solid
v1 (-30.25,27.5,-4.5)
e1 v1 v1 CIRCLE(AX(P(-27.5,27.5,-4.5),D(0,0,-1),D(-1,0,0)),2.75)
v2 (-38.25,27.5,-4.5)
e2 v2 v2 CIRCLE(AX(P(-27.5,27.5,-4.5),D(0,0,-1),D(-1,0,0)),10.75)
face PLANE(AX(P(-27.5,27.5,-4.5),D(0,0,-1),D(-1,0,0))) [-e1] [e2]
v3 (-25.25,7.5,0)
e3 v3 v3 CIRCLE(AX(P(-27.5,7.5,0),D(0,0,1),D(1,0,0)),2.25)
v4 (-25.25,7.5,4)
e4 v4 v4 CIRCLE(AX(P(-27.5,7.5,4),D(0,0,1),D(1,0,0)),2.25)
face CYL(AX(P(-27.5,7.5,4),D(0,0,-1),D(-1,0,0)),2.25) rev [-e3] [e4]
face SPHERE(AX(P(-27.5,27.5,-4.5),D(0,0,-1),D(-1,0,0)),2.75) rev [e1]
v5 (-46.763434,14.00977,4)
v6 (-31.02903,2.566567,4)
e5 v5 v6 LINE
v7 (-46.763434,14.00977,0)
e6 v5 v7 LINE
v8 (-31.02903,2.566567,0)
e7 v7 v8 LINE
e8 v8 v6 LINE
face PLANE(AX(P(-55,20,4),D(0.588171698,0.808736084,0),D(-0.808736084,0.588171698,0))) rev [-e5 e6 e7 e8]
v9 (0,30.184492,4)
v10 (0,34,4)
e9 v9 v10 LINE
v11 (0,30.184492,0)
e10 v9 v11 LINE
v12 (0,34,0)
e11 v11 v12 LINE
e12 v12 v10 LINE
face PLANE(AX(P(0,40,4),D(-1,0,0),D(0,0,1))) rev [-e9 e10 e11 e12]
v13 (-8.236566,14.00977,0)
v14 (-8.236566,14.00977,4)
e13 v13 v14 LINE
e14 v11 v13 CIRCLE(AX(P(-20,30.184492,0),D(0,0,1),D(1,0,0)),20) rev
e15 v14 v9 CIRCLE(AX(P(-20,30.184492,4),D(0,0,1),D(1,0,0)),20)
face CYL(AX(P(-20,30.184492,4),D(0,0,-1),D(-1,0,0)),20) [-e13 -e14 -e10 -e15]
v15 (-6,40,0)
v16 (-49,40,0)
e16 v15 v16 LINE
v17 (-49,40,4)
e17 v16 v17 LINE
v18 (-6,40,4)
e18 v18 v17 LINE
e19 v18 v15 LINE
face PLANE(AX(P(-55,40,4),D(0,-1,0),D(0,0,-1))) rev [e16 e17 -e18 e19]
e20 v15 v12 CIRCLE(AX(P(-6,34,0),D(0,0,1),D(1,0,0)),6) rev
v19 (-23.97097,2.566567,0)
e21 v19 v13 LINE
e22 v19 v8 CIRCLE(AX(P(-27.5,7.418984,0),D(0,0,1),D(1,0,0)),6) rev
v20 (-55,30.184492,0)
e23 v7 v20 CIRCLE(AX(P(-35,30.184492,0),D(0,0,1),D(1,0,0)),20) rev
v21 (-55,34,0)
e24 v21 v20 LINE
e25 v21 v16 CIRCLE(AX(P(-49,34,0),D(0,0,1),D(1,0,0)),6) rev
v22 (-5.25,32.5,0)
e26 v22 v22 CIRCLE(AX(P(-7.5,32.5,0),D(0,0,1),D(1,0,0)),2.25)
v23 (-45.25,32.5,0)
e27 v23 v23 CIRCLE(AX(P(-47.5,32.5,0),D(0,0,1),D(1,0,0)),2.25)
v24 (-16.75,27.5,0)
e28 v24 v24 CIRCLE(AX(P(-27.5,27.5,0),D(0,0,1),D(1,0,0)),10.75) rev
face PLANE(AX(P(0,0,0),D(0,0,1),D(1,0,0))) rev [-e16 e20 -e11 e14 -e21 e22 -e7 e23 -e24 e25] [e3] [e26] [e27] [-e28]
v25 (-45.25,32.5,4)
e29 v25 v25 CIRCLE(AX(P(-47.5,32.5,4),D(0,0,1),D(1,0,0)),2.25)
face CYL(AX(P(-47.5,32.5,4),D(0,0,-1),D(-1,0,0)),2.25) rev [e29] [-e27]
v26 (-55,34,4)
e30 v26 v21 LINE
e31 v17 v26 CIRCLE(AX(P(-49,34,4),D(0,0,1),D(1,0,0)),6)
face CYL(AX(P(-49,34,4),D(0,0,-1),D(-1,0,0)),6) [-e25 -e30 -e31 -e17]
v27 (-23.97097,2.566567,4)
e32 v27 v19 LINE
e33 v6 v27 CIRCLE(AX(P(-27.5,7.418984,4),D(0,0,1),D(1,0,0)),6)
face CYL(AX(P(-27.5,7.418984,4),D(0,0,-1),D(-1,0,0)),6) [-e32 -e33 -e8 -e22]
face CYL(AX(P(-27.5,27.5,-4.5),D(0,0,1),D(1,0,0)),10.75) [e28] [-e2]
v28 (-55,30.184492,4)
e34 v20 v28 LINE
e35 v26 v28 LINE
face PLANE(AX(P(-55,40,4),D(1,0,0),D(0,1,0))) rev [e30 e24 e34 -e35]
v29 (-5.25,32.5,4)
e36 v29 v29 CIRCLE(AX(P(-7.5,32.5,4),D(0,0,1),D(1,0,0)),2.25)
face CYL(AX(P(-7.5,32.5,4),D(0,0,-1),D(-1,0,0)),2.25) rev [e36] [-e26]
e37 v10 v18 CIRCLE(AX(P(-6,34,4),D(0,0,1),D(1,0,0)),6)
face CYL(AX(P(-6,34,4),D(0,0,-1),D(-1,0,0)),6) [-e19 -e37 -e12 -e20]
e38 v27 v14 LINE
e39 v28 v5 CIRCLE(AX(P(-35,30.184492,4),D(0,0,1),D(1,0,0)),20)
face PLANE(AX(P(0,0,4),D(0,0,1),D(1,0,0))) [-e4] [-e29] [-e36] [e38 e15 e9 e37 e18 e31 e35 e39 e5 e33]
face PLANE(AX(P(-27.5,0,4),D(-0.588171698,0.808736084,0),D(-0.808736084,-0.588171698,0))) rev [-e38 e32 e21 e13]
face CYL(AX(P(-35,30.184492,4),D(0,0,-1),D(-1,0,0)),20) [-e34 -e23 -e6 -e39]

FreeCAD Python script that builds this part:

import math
import FreeCAD as App
import Part
import Sketcher

V = App.Vector


def edges_at(feature, points):
    """Names of the edges that pass closest to the given points."""
    edges = feature.Shape.Edges
    near = lambda p: min(range(len(edges)), key=lambda i: edges[i].distToShape(Part.Vertex(*p))[0])
    return sorted({f"Edge{near(p) + 1}" for p in points})

doc = App.newDocument("Part")
body = doc.addObject("PartDesign::Body", "Body")

sketch1 = doc.addObject("Sketcher::SketchObject", "Sketch")
body.addObject(sketch1)
sketch1.AttachmentSupport = (doc.XY_Plane, [""])
sketch1.MapMode = "FlatFace"
sketch1.addGeometry([
    Part.LineSegment(V(-55, 20, 0), V(-27.5, 0, 0)),
    Part.LineSegment(V(-27.5, 0, 0), V(0, 20, 0)),
    Part.LineSegment(V(0, 20, 0), V(0, 40, 0)),
    Part.LineSegment(V(0, 40, 0), V(-55, 40, 0)),
    Part.LineSegment(V(-55, 40, 0), V(-55, 20, 0)),
    Part.Circle(V(-27.5, 7.5, 0), V(0, 0, 1), 2.2),
    Part.Circle(V(-47.5, 32.5, 0), V(0, 0, 1), 2.2),
    Part.Circle(V(-7.5, 32.5, 0), V(0, 0, 1), 2.2),
], False)
sketch1.addConstraint([
    Sketcher.Constraint("Coincident", 0, 2, 1, 1),
    Sketcher.Constraint("Coincident", 1, 2, 2, 1),
    Sketcher.Constraint("Coincident", 2, 2, 3, 1),
    Sketcher.Constraint("Coincident", 3, 2, 4, 1),
    Sketcher.Constraint("Coincident", 4, 2, 0, 1),
    Sketcher.Constraint("Vertical", 2),
    Sketcher.Constraint("Horizontal", 3),
    Sketcher.Constraint("Vertical", 4),
    Sketcher.Constraint("Equal", 5, 6),
    Sketcher.Constraint("Equal", 6, 7),
    Sketcher.Constraint("PointOnObject", 0, 2, -1),
    Sketcher.Constraint("PointOnObject", 1, 2, -2),
    Sketcher.Constraint("Horizontal", 6, 3, 7, 3),
    Sketcher.Constraint("Horizontal", 1, 2, 4, 2),
    Sketcher.Constraint("Vertical", 5, 3, 0, 2),
    Sketcher.Constraint("Equal", 0, 1),
    Sketcher.Constraint("Diameter", 5, 4.5),
    Sketcher.Constraint("DistanceX", 3, 2, 3, 1, 55.0),
    Sketcher.Constraint("DistanceY", 2, 1, 2, 2, 20.0),
    Sketcher.Constraint("DistanceY", -1, 1, 1, 2, 20.0),
    Sketcher.Constraint("DistanceX", 6, 3, 5, 3, 20.0),
    Sketcher.Constraint("DistanceY", 5, 3, 6, 3, 25.0),
    Sketcher.Constraint("DistanceX", 5, 3, 7, 3, 20.0),
    Sketcher.Constraint("DistanceY", -1, 1, 5, 3, 7.5),
])
pad1 = doc.addObject("PartDesign::Pad", "Pad")
body.addObject(pad1)
pad1.Profile = sketch1
pad1.Length = 4
doc.recompute()

fillet = doc.addObject("PartDesign::Fillet", "Fillet")
body.addObject(fillet)
fillet.Base = (pad1, edges_at(pad1, [(-55, 40, 2), (0, 40, 2), (-27.5, 0, 2)]))
fillet.Radius = 6
doc.recompute()

fillet2 = doc.addObject("PartDesign::Fillet", "Fillet001")
body.addObject(fillet2)
fillet2.Base = (fillet, edges_at(fillet, [(0, 20, 2), (-55, 20, 2)]))
fillet2.Radius = 20

sketch2 = doc.addObject("Sketcher::SketchObject", "Sketch001")
body.addObject(sketch2)
sketch2.AttachmentSupport = (doc.XY_Plane, [""])
sketch2.MapMode = "FlatFace"
sketch2.addGeometry(Part.Circle(V(-28, 28, 0), V(0, 0, 1), 11), False)
sketch2.addConstraint([
    Sketcher.Constraint("Diameter", 0, 21.5),
    Sketcher.Constraint("DistanceX", 0, 3, -1, 1, 27.5),
    Sketcher.Constraint("DistanceY", -1, 1, 0, 3, 27.5),
])
pad2 = doc.addObject("PartDesign::Pad", "Pad001")
body.addObject(pad2)
pad2.Profile = sketch2
pad2.Length = 4.5
pad2.Reversed = True

sketch3 = doc.addObject("Sketcher::SketchObject", "Sketch002")
body.addObject(sketch3)
sketch3.AttachmentSupport = (doc.XY_Plane, [""])
sketch3.MapMode = "FlatFace"
sketch3.AttachmentOffset = App.Placement(V(0, 0, -4.5), App.Rotation())
sketch3.addGeometry([
    Part.LineSegment(V(-27.5, 24.8, 0), V(-27.5, 30.2, 0)),
    Part.ArcOfCircle(Part.Circle(V(-27.5, 27.5, 0), V(0, 0, 1), 2.8), math.radians(-90), math.radians(90)),
], False)
sketch3.addGeometry(Part.LineSegment(V(-27.5, 30.2, 0), V(-27.5, 24.8, 0)), True)
sketch3.addConstraint([
    Sketcher.Constraint("Coincident", 0, 1, 1, 1),
    Sketcher.Constraint("Coincident", 1, 2, 0, 2),
    Sketcher.Constraint("Vertical", 0),
    Sketcher.Constraint("Vertical", 2),
    Sketcher.Constraint("Coincident", 2, 1, 1, 2),
    Sketcher.Constraint("Vertical", 1, 3, 0, 1),
    Sketcher.Constraint("Equal", 0, 2),
    Sketcher.Constraint("Radius", 1, 2.75),
    Sketcher.Constraint("DistanceX", 1, 3, -1, 1, 27.5),
    Sketcher.Constraint("DistanceY", -1, 1, 1, 3, 27.5),
])
groove = doc.addObject("PartDesign::Groove", "Groove")
body.addObject(groove)
groove.Profile = sketch3
groove.ReferenceAxis = (sketch3, ["Axis0"])
groove.Angle = 360

doc.recompute()
